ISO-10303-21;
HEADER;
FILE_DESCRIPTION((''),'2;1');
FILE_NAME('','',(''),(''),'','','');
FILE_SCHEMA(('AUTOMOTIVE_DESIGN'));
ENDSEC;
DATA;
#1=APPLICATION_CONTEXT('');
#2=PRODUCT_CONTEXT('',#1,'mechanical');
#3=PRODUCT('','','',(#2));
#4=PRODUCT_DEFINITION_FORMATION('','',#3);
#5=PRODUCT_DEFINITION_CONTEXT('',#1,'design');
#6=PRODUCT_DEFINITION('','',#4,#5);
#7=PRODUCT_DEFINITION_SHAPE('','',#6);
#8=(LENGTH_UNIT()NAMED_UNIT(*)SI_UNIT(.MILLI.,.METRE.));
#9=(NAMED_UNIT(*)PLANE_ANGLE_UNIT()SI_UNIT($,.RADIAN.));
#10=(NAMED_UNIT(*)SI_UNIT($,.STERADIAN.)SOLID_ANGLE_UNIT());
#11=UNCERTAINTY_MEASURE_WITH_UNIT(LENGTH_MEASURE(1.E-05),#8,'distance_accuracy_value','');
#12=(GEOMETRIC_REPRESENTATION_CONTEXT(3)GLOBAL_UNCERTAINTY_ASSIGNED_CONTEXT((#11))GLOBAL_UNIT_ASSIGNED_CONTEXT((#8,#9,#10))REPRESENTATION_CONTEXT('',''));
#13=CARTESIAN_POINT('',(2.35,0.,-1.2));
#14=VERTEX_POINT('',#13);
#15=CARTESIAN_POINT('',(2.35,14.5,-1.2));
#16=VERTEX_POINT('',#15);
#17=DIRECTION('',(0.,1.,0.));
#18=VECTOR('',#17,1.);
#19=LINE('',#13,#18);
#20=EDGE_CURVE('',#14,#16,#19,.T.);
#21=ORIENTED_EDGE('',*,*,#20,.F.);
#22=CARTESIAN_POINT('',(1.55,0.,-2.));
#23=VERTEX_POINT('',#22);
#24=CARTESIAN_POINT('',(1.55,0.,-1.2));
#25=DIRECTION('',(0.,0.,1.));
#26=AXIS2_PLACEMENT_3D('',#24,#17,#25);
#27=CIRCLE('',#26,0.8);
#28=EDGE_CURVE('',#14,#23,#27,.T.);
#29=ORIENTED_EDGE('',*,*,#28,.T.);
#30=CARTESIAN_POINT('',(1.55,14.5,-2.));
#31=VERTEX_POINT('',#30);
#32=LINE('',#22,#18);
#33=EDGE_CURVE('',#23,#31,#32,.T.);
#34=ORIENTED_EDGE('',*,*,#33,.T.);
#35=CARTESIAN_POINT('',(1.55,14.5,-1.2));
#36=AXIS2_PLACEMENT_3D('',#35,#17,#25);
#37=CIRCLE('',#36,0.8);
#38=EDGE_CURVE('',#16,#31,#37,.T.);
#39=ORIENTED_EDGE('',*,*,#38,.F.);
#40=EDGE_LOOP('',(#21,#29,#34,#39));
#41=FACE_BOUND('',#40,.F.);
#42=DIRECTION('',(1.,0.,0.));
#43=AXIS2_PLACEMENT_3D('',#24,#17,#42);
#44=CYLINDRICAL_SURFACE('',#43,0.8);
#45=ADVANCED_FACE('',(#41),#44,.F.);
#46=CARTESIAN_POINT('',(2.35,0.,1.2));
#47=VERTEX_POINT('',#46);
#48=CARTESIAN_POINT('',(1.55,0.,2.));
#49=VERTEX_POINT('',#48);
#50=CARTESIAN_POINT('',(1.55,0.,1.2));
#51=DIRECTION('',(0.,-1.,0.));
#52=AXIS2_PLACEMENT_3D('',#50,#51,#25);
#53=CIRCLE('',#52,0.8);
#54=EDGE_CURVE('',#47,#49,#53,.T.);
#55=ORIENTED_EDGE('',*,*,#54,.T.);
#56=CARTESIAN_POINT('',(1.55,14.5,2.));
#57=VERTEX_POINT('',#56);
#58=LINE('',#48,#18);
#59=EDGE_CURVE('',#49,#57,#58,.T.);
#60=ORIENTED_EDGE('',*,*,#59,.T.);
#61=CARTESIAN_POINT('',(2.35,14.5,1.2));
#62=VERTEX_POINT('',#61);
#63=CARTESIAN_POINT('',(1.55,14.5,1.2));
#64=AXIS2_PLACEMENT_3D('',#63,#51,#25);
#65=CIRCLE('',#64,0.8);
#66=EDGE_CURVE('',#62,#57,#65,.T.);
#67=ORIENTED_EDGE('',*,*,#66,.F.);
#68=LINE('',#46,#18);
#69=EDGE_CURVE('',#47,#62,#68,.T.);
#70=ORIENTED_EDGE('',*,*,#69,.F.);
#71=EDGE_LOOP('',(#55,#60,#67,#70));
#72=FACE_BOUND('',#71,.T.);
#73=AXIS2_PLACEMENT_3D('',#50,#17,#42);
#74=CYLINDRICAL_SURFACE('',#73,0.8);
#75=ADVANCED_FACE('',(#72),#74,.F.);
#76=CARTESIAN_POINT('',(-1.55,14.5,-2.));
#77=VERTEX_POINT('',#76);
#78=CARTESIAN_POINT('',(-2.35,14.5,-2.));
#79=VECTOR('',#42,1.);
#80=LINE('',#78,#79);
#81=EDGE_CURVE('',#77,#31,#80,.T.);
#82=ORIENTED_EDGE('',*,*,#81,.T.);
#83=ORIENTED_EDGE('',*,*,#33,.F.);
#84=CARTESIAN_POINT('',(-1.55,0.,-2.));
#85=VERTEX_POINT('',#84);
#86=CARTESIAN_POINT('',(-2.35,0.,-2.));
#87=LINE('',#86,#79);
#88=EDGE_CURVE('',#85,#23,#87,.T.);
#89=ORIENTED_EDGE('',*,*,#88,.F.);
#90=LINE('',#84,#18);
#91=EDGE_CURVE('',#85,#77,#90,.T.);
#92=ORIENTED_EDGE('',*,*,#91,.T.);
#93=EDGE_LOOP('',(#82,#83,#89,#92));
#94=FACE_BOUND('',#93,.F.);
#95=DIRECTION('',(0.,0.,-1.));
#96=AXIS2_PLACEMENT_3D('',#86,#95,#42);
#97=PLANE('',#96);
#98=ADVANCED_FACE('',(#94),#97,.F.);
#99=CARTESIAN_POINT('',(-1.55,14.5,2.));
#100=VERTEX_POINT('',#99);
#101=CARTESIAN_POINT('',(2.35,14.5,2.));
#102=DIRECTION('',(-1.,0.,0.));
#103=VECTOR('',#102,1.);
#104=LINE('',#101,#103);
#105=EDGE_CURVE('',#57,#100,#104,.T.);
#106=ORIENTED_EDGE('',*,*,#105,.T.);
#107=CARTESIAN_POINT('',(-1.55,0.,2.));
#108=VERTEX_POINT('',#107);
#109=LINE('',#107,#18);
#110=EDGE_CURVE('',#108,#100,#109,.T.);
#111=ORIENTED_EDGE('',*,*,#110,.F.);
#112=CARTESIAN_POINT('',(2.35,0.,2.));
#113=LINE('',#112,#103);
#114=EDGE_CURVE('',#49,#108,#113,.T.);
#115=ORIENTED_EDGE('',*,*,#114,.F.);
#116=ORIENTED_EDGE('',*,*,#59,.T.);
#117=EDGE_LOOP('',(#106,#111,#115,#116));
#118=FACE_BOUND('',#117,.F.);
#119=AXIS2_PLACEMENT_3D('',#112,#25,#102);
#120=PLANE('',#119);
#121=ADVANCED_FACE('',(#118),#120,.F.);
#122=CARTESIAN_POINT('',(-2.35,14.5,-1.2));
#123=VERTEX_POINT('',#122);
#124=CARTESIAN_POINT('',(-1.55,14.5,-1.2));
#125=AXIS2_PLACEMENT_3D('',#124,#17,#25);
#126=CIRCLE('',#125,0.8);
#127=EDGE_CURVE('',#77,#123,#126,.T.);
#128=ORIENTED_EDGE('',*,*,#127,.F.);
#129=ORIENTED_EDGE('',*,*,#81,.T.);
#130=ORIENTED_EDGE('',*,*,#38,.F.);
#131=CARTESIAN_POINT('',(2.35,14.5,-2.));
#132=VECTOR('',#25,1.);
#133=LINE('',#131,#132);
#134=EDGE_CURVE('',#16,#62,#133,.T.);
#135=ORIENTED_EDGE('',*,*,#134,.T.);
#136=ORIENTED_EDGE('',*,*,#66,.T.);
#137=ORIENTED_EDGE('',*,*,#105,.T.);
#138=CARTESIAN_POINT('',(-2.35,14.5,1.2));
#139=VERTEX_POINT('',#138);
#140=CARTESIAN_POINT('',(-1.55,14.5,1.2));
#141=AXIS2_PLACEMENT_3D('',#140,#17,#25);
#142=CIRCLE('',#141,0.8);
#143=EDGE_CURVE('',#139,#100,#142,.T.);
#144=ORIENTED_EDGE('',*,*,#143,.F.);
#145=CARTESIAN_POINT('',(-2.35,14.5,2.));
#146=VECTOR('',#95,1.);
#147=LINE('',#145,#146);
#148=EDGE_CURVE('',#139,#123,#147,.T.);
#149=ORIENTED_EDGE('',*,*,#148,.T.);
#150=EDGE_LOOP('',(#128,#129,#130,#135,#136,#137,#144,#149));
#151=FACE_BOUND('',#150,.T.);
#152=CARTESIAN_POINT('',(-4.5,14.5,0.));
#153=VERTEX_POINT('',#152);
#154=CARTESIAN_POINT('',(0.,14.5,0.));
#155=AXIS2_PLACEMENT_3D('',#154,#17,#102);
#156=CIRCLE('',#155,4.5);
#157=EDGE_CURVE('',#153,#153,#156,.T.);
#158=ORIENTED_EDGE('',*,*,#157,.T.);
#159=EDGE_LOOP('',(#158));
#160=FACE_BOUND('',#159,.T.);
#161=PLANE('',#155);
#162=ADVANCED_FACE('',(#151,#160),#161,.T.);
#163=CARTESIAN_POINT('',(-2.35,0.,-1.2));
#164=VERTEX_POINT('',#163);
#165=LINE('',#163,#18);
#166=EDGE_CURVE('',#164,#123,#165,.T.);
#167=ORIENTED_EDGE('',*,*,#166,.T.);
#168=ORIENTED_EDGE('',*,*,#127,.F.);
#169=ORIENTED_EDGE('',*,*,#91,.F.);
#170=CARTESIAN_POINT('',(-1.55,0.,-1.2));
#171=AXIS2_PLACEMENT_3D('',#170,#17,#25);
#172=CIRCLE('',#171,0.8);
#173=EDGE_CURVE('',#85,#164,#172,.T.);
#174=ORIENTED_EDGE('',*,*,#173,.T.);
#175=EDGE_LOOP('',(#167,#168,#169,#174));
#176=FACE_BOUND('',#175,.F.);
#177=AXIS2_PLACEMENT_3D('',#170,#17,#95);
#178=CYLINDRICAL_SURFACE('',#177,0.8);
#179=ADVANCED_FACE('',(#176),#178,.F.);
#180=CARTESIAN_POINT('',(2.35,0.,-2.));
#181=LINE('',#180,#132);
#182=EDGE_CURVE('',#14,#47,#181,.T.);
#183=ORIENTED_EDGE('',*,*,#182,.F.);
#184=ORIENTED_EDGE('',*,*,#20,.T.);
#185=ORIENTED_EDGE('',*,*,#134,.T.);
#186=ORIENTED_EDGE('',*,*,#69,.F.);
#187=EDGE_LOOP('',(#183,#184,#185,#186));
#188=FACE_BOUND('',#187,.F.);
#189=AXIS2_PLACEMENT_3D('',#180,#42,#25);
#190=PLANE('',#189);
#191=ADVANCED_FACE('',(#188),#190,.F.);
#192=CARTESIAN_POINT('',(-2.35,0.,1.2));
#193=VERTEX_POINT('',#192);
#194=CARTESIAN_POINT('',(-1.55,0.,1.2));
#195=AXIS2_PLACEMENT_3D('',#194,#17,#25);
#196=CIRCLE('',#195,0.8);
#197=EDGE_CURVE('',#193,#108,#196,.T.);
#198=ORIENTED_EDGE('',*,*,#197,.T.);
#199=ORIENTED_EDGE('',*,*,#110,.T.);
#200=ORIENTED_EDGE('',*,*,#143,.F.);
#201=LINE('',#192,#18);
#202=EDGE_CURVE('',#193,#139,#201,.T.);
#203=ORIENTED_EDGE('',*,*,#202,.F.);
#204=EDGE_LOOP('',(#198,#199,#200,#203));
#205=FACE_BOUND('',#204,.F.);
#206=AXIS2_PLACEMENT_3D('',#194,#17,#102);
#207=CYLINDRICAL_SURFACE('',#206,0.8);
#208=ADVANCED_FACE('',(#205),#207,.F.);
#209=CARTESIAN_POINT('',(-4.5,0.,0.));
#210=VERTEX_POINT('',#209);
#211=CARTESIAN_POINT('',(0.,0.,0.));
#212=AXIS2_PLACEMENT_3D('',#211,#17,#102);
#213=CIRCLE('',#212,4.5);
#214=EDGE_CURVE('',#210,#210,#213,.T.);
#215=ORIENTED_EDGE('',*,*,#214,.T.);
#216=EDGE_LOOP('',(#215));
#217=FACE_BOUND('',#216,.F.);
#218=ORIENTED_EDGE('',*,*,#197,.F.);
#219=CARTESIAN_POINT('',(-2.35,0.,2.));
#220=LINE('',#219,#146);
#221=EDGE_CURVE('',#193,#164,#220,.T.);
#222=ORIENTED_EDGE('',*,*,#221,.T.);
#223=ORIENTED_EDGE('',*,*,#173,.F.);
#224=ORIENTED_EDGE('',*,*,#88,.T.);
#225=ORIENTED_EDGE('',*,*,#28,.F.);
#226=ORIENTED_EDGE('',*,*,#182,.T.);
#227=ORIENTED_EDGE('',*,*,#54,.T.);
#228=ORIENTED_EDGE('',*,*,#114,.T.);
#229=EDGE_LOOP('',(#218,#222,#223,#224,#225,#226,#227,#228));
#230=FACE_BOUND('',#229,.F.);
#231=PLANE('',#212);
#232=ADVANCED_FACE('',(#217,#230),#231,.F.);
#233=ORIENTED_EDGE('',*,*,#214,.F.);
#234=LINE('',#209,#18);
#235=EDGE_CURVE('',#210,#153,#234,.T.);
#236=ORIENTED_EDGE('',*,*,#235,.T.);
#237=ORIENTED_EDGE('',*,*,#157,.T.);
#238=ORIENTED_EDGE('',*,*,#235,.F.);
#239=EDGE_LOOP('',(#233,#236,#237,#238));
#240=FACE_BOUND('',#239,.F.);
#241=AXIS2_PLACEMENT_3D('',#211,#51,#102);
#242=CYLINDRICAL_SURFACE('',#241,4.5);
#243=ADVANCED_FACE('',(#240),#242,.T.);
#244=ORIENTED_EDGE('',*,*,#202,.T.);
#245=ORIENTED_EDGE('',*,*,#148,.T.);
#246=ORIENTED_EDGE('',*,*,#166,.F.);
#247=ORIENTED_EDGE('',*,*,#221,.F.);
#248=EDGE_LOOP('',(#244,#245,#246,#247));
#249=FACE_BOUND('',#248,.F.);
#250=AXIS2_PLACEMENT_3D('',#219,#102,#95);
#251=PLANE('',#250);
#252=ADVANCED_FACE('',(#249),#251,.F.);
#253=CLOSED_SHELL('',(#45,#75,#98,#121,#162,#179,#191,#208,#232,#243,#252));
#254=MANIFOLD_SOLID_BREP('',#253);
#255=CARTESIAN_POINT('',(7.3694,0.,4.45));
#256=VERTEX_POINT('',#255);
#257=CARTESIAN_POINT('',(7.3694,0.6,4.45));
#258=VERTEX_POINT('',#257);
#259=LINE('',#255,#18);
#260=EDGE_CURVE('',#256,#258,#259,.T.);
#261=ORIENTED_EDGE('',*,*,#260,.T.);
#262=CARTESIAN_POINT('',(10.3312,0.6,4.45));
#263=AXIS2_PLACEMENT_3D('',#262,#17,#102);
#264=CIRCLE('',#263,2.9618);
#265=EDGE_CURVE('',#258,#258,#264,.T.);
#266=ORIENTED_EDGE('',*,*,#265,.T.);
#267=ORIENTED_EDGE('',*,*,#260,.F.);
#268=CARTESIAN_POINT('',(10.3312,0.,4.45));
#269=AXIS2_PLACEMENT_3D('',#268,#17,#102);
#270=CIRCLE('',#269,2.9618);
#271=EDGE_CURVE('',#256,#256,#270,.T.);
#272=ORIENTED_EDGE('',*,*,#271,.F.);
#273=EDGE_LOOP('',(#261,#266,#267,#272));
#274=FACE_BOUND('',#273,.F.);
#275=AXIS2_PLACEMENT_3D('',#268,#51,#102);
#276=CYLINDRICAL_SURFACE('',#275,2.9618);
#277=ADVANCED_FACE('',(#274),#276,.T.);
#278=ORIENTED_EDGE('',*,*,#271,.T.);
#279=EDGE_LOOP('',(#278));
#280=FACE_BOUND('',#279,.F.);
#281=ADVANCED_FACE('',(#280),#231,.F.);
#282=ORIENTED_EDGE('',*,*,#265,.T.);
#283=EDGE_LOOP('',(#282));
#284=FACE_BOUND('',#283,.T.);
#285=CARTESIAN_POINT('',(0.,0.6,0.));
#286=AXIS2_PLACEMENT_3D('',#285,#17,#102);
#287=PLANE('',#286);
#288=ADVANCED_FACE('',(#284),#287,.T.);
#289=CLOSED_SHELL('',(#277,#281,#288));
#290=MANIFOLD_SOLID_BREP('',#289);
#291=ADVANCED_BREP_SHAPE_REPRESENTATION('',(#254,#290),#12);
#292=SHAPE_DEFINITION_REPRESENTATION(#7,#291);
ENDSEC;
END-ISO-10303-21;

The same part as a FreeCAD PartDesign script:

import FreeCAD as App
import Part
import Sketcher

V = App.Vector


def edges_at(feature, points):
    """Names of the edges that pass closest to the given points."""
    edges = feature.Shape.Edges
    near = lambda p: min(range(len(edges)), key=lambda i: edges[i].distToShape(Part.Vertex(*p))[0])
    return sorted({f"Edge{near(p) + 1}" for p in points})


def add_polygon(sketch, points):
    """Adds a closed chain of lines whose ends are joined by coincident constraints."""
    first, n = sketch.GeometryCount, len(points)
    for a, b in zip(points, points[1:] + points[:1]):
        sketch.addGeometry(Part.LineSegment(App.Vector(*a, 0), App.Vector(*b, 0)), False)
    for i in range(n):
        sketch.addConstraint(Sketcher.Constraint("Coincident", first + i, 2, first + (i + 1) % n, 1))

doc = App.newDocument("Part")
body = doc.addObject("PartDesign::Body", "Body")
body.AllowCompound = True

sketch1 = doc.addObject("Sketcher::SketchObject", "Sketch")
body.addObject(sketch1)
sketch1.AttachmentSupport = (doc.XZ_Plane, [""])
sketch1.MapMode = "FlatFace"
sketch1.addGeometry(Part.Circle(V(0, 0, 0), V(0, 0, 1), 4.5), False)
add_polygon(sketch1, [(2.4, -2), (2.4, 2), (-2.4, 2), (-2.4, -2)])
sketch1.addConstraint([
    Sketcher.Constraint("Vertical", 1),
    Sketcher.Constraint("Horizontal", 2),
    Sketcher.Constraint("Vertical", 3),
    Sketcher.Constraint("Horizontal", 4),
    Sketcher.Constraint("Coincident", 0, 3, -1, 1),
    Sketcher.Constraint("Symmetric", 1, 2, 3, 2, -1, 1),
    Sketcher.Constraint("Diameter", 0, 9.0),
    Sketcher.Constraint("DistanceY", 1, 1, 1, 2, 4.0),
    Sketcher.Constraint("DistanceX", 2, 2, 2, 1, 4.7),
])
pad1 = doc.addObject("PartDesign::Pad", "Pad")
body.addObject(pad1)
pad1.Profile = sketch1
pad1.Length = 14.5
pad1.Reversed = True
doc.recompute()

fillet = doc.addObject("PartDesign::Fillet", "Fillet")
body.addObject(fillet)
fillet.Base = (pad1, edges_at(pad1, [
    (-2.35, 7.25, -2),
    (2.35, 7.25, -2),
    (2.35, 7.25, 2),
    (-2.35, 7.25, 2),
]))
fillet.Radius = 0.8

sketch2 = doc.addObject("Sketcher::SketchObject", "Sketch001")
body.addObject(sketch2)
sketch2.AttachmentSupport = (doc.XZ_Plane, [""])
sketch2.MapMode = "FlatFace"
sketch2.addGeometry(Part.Circle(V(10.3, 4.5, 0), V(0, 0, 1), 3), False)
sketch2.addConstraint([
    Sketcher.Constraint("Diameter", 0, 5.9236),
    Sketcher.Constraint("DistanceY", -1, 1, 0, 3, 4.45),
    Sketcher.Constraint("DistanceX", -1, 1, 0, 3, 10.3312),
])
pad2 = doc.addObject("PartDesign::Pad", "Pad001")
body.addObject(pad2)
pad2.Profile = sketch2
pad2.Length = 0.6
pad2.Reversed = True

doc.recompute()
